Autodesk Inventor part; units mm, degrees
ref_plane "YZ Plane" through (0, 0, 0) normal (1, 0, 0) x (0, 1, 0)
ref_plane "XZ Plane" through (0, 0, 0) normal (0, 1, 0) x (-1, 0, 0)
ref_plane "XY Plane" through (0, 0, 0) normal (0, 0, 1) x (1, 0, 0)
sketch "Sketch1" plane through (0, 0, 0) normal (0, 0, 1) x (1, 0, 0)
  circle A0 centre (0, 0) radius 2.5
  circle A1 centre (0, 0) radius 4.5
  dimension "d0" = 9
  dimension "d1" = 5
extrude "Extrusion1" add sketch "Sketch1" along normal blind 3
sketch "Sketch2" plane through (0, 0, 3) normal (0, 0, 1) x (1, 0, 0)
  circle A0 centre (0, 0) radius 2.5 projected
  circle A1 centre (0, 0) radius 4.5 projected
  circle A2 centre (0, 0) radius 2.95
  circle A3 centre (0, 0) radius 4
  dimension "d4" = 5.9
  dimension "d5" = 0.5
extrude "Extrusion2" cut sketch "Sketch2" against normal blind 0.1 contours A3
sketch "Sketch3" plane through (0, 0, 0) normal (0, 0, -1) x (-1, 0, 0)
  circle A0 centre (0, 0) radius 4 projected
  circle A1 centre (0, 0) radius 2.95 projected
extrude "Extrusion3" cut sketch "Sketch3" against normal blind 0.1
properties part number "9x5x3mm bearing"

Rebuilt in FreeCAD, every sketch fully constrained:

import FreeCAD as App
import Part
import Sketcher

V = App.Vector
Q = App.Units.Quantity

doc = App.newDocument("Part")
body = doc.addObject("PartDesign::Body", "Body")

# Sketch on XY plane
sketch1 = doc.addObject("Sketcher::SketchObject", "Sketch")
body.addObject(sketch1)
sketch1.AttachmentSupport = (doc.XY_Plane, [""])
sketch1.MapMode = "FlatFace"
sketch1.addGeometry([
    Part.Circle(V(0, 0, 0), V(0, 0, 1), 4.5),
    Part.Circle(V(0, 0, 0), V(0, 0, 1), 2.5),
], False)
sketch1.addConstraint([
    Sketcher.Constraint("Coincident", 0, 3, -1, 1),
    Sketcher.Constraint("Coincident", 1, 3, -1, 1),
    Sketcher.Constraint("Diameter", 0, Q("9 mm")),
    Sketcher.Constraint("Diameter", 1, Q("5 mm")),
])
pad1 = doc.addObject("PartDesign::Pad", "Pad")
body.addObject(pad1)
pad1.Profile = sketch1
pad1.Length = 3

# Sketch on XY plane
sketch2 = doc.addObject("Sketcher::SketchObject", "Sketch001")
body.addObject(sketch2)
sketch2.AttachmentSupport = (doc.XY_Plane, [""])
sketch2.MapMode = "FlatFace"
sketch2.AttachmentOffset = App.Placement(V(0, 0, 3), App.Rotation())
sketch2.addGeometry([
    Part.Circle(V(0, 0, 0), V(0, 0, 1), 4),
    Part.Circle(V(0, 0, 0), V(0, 0, 1), 3),
], False)
sketch2.addConstraint([
    Sketcher.Constraint("Coincident", 0, 3, -1, 1),
    Sketcher.Constraint("Coincident", 1, 3, -1, 1),
    Sketcher.Constraint("Diameter", 1, Q("5.9 mm")),
    Sketcher.Constraint("Diameter", 0, Q("8 mm")),
])
pocket1 = doc.addObject("PartDesign::Pocket", "Pocket")
body.addObject(pocket1)
pocket1.Profile = sketch2
pocket1.Length = 0.1

# Sketch on XY plane
sketch3 = doc.addObject("Sketcher::SketchObject", "Sketch002")
body.addObject(sketch3)
sketch3.AttachmentSupport = (doc.XY_Plane, [""])
sketch3.MapMode = "FlatFace"
sketch3.addGeometry([
    Part.Circle(V(0, 0, 0), V(0, 0, 1), 4),
    Part.Circle(V(0, 0, 0), V(0, 0, 1), 3),
], False)
sketch3.addConstraint([
    Sketcher.Constraint("Coincident", 0, 3, -1, 1),
    Sketcher.Constraint("Coincident", 1, 3, -1, 1),
    Sketcher.Constraint("Diameter", 0, Q("8 mm")),
    Sketcher.Constraint("Diameter", 1, Q("5.9 mm")),
])
pocket2 = doc.addObject("PartDesign::Pocket", "Pocket001")
body.addObject(pocket2)
pocket2.Profile = sketch3
pocket2.Length = 0.1
pocket2.Reversed = True

doc.recompute()
